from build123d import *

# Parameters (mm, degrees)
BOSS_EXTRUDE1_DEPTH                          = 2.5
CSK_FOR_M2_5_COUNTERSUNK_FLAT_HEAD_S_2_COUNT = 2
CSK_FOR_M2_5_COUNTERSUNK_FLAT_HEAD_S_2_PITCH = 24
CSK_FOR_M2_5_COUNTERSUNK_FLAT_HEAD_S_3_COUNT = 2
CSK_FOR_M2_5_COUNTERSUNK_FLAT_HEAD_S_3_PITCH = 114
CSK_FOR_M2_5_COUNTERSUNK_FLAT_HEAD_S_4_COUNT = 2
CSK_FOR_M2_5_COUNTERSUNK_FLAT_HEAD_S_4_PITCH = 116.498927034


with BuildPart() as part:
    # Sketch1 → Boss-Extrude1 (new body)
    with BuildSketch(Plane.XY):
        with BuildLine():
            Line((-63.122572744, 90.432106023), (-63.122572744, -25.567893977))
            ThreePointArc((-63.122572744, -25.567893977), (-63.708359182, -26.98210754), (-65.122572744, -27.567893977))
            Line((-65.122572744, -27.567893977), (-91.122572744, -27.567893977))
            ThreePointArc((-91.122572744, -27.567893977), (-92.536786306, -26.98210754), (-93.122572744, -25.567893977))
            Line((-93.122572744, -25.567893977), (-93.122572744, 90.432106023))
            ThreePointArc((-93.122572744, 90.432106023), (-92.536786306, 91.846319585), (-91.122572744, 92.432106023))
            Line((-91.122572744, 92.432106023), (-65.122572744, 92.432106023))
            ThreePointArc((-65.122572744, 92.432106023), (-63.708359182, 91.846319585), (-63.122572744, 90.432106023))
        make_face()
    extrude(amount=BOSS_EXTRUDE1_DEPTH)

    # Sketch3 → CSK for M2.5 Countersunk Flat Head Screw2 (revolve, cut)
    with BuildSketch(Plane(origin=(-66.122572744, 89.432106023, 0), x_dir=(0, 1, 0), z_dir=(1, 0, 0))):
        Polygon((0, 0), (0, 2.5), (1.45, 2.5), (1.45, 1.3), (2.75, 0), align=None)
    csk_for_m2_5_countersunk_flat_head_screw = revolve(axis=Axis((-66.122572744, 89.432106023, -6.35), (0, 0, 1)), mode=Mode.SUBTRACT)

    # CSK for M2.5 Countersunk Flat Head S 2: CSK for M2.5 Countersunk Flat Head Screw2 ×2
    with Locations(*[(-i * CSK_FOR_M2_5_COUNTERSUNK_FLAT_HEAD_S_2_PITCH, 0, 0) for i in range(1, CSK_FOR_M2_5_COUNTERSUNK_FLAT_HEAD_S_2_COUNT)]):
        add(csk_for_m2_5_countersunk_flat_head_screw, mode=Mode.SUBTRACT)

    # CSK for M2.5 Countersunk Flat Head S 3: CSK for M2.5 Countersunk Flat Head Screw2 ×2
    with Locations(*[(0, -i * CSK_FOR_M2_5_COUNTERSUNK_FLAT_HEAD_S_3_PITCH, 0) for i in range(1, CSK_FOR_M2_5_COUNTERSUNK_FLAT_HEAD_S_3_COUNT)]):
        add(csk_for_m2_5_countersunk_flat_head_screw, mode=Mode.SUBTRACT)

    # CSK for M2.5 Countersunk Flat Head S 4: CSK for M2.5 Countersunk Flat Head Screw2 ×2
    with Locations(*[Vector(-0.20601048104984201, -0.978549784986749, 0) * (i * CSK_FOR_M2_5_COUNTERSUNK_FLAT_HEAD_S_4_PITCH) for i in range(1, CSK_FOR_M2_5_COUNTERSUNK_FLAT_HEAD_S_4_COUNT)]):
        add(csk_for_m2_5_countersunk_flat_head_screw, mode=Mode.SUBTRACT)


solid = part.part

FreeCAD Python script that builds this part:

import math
import FreeCAD as App
import Part
import Sketcher
from FreeCAD import Vector
Q = App.Units.Quantity

doc = App.newDocument("Part")
body = doc.addObject("PartDesign::Body", "Body")

# Sketch on XY plane
sketch1 = doc.addObject("Sketcher::SketchObject", "Sketch")
body.addObject(sketch1)
sketch1.AttachmentSupport = (doc.XY_Plane, [""])
sketch1.MapMode = "FlatFace"
sketch1.addGeometry([
    Part.LineSegment(Vector(-63.1, -25.6, 0), Vector(-63.1, 90.4, 0)),  # 0
    Part.ArcOfCircle(Part.Circle(Vector(-65.1, 90.4, 0), Vector(0, 0, 1), 2), math.radians(0), math.radians(90)),  # 1
    Part.LineSegment(Vector(-65.1, 92.4, 0), Vector(-91.1, 92.4, 0)),  # 2
    Part.ArcOfCircle(Part.Circle(Vector(-91.1, 90.4, 0), Vector(0, 0, 1), 2), math.radians(90), math.radians(180)),  # 3
    Part.LineSegment(Vector(-93.1, 90.4, 0), Vector(-93.1, -25.6, 0)),  # 4
    Part.ArcOfCircle(Part.Circle(Vector(-91.1, -25.6, 0), Vector(0, 0, 1), 2), math.radians(180), math.radians(270)),  # 5
    Part.LineSegment(Vector(-91.1, -27.6, 0), Vector(-65.1, -27.6, 0)),  # 6
    Part.ArcOfCircle(Part.Circle(Vector(-65.1, -25.6, 0), Vector(0, 0, 1), 2), math.radians(-90), math.radians(0)),  # 7
], False)
sketch1.addConstraint([
    Sketcher.Constraint("Tangent", 0, 2, 1, 1),
    Sketcher.Constraint("Tangent", 1, 2, 2, 1),
    Sketcher.Constraint("Tangent", 2, 2, 3, 1),
    Sketcher.Constraint("Tangent", 3, 2, 4, 1),
    Sketcher.Constraint("Tangent", 4, 2, 5, 1),
    Sketcher.Constraint("Tangent", 5, 2, 6, 1),
    Sketcher.Constraint("Tangent", 6, 2, 7, 1),
    Sketcher.Constraint("Tangent", 7, 2, 0, 1),
    Sketcher.Constraint("Vertical", 0),
    Sketcher.Constraint("Horizontal", 2),
    Sketcher.Constraint("Vertical", 4),
    Sketcher.Constraint("Horizontal", 6),
    Sketcher.Constraint("Equal", 1, 3),
    Sketcher.Constraint("Equal", 3, 5),
    Sketcher.Constraint("Equal", 5, 7),
    Sketcher.Constraint("Radius", 1, 2.0),
    Sketcher.Constraint("DistanceX", 2, 2, 2, 1, 26.0),
    Sketcher.Constraint("DistanceY", 0, 1, 0, 2, 116.0),
    Sketcher.Constraint("DistanceX", 1, 3, -1, 1, 65.122573),
    Sketcher.Constraint("DistanceY", -1, 1, 1, 3, 90.432106),
])
pad1 = doc.addObject("PartDesign::Pad", "Pad")
body.addObject(pad1)
pad1.Profile = sketch1
pad1.Length = 2.5

# Sketch on YZ plane
sketch2 = doc.addObject("Sketcher::SketchObject", "Sketch001")
body.addObject(sketch2)
sketch2.AttachmentSupport = (doc.YZ_Plane, [""])
sketch2.MapMode = "FlatFace"
sketch2.AttachmentOffset = App.Placement(Vector(0, 0, -66.122573), App.Rotation())
sketch2.addGeometry([
    Part.LineSegment(Vector(89.4, 2.5, 0), Vector(89.4, 0, 0)),  # 0
    Part.LineSegment(Vector(89.4, 0, 0), Vector(92.2, 0, 0)),  # 1
    Part.LineSegment(Vector(92.2, 0, 0), Vector(90.9, 1.3, 0)),  # 2
    Part.LineSegment(Vector(90.9, 1.3, 0), Vector(90.9, 2.5, 0)),  # 3
    Part.LineSegment(Vector(90.9, 2.5, 0), Vector(89.4, 2.5, 0)),  # 4
], False)
sketch2.addGeometry(Part.LineSegment(Vector(89.4, 0, 0), Vector(89.4, 2.5, 0)), True)  # axis
sketch2.addConstraint([
    Sketcher.Constraint("Coincident", 0, 2, 1, 1),
    Sketcher.Constraint("Coincident", 1, 2, 2, 1),
    Sketcher.Constraint("Coincident", 2, 2, 3, 1),
    Sketcher.Constraint("Coincident", 3, 2, 4, 1),
    Sketcher.Constraint("Coincident", 4, 2, 0, 1),
    Sketcher.Constraint("Vertical", 0),
    Sketcher.Constraint("Horizontal", 1),
    Sketcher.Constraint("Vertical", 3),
    Sketcher.Constraint("Horizontal", 4),
    Sketcher.Constraint("Vertical", 5),
    Sketcher.Constraint("Coincident", 5, 1, 0, 2),
    Sketcher.Constraint("PointOnObject", 0, 2, -1),
    Sketcher.Constraint("Horizontal", 3, 2, 5, 2),
    Sketcher.Constraint("Angle", 2, Q("135 deg")),
    Sketcher.Constraint("DistanceY", 0, 2, 0, 1, 2.5),
    Sketcher.Constraint("DistanceY", 3, 1, 3, 2, 1.2),
    Sketcher.Constraint("DistanceX", 1, 1, 1, 2, 2.75),
    Sketcher.Constraint("DistanceX", -1, 1, 0, 2, 89.432106),
])
groove = doc.addObject("PartDesign::Groove", "Groove")
body.addObject(groove)
groove.Profile = sketch2
groove.ReferenceAxis = (sketch2, ["Axis0"])
groove.Angle = 360
doc.recompute()

linearpattern = doc.addObject("PartDesign::LinearPattern", "LinearPattern")
body.addObject(linearpattern)
linearpattern.Originals = [groove]
linearpattern.Direction = (doc.X_Axis, [""])
linearpattern.Mode = "offset"
linearpattern.Offset = 24
linearpattern.Occurrences = 2
linearpattern.Reversed = True
body.Tip = linearpattern
doc.recompute()

linearpattern2 = doc.addObject("PartDesign::LinearPattern", "LinearPattern001")
body.addObject(linearpattern2)
linearpattern2.Originals = [groove]
linearpattern2.Direction = (doc.Y_Axis, [""])
linearpattern2.Mode = "offset"
linearpattern2.Offset = 114
linearpattern2.Occurrences = 2
linearpattern2.Reversed = True
body.Tip = linearpattern2
doc.recompute()

datumline = doc.addObject("PartDesign::Line", "DatumLine")
body.addObject(datumline)
datumline.Placement = App.Placement(Vector(0, 0, 0), App.Rotation(Vector(0, 0, 1), Vector(-0.206010481, -0.978549785, 0)))
linearpattern3 = doc.addObject("PartDesign::LinearPattern", "LinearPattern002")
body.addObject(linearpattern3)
linearpattern3.Originals = [groove]
linearpattern3.Direction = (datumline, [""])
linearpattern3.Mode = "offset"
linearpattern3.Offset = 116.498927
linearpattern3.Occurrences = 2
body.Tip = linearpattern3

doc.recompute()
